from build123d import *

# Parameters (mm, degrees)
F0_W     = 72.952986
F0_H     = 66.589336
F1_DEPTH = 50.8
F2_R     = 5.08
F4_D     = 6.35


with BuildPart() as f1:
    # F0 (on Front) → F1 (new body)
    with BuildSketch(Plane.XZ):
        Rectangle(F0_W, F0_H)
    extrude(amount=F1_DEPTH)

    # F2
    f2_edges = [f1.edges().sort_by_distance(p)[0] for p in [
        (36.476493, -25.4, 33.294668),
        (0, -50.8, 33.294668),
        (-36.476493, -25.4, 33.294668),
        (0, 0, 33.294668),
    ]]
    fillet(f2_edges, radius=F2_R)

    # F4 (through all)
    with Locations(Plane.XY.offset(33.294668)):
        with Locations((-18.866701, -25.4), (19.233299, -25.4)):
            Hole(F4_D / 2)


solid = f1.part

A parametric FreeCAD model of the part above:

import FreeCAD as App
import Part
import Sketcher
from FreeCAD import Vector
Q = App.Units.Quantity


def edges_at(feature, points):
    """Names of the edges that pass closest to the given points."""
    edges = feature.Shape.Edges
    near = lambda p: min(range(len(edges)), key=lambda i: edges[i].distToShape(Part.Vertex(*p))[0])
    return sorted({f"Edge{near(p) + 1}" for p in points})

doc = App.newDocument("Part")
params = doc.addObject("Spreadsheet::Sheet", "Params")
for row, (alias, value) in enumerate([
    ("pad1_length", "2 in"),
    ("fillet_radius", "0.2 in"),
    ("sketch2_diameter", "0.25 in"),
    ("hole_diameter", "0.25 in"),
], start=1):
    params.set(f"A{row}", alias)
    params.set(f"B{row}", "=" + value)
    params.setAlias(f"B{row}", alias)

body = doc.addObject("PartDesign::Body", "Body")

# Sketch on XZ plane
sketch1 = doc.addObject("Sketcher::SketchObject", "Sketch")
body.addObject(sketch1)
sketch1.AttachmentSupport = (doc.XZ_Plane, [""])
sketch1.MapMode = "FlatFace"
sketch1.addGeometry([
    Part.LineSegment(Vector(-36.476493, 33.294668, 0), Vector(-36.476493, -33.294668, 0)),
    Part.LineSegment(Vector(-36.476493, -33.294668, 0), Vector(36.476493, -33.294668, 0)),
    Part.LineSegment(Vector(36.476493, -33.294668, 0), Vector(36.476493, 33.294668, 0)),
    Part.LineSegment(Vector(36.476493, 33.294668, 0), Vector(-36.476493, 33.294668, 0)),
], False)
sketch1.addConstraint([
    Sketcher.Constraint("Coincident", 0, 2, 1, 1),
    Sketcher.Constraint("Coincident", 1, 2, 2, 1),
    Sketcher.Constraint("Coincident", 2, 2, 3, 1),
    Sketcher.Constraint("Coincident", 3, 2, 0, 1),
    Sketcher.Constraint("Vertical", 0),
    Sketcher.Constraint("Horizontal", 1),
    Sketcher.Constraint("Vertical", 2),
    Sketcher.Constraint("Horizontal", 3),
    Sketcher.Constraint("Symmetric", 0, 2, 2, 2, -1, 1),
    Sketcher.Constraint("DistanceX", 1, 1, 1, 2, Q("72.952986 mm")),
    Sketcher.Constraint("DistanceY", 0, 2, 0, 1, Q("66.589336 mm")),
])
pad1 = doc.addObject("PartDesign::Pad", "Pad")
body.addObject(pad1)
pad1.Profile = sketch1
pad1.setExpression("Length", "Params.pad1_length")
doc.recompute()

fillet = doc.addObject("PartDesign::Fillet", "Fillet")
body.addObject(fillet)
fillet.Base = (pad1, edges_at(pad1, [
    (36.476, -25.4, 33.295),
    (0, -50.8, 33.295),
    (-36.476, -25.4, 33.295),
    (0, 0, 33.295),
]))
fillet.setExpression("Radius", "Params.fillet_radius")

# Sketch on XY plane
sketch2 = doc.addObject("Sketcher::SketchObject", "Sketch001")
body.addObject(sketch2)
sketch2.AttachmentSupport = (doc.XY_Plane, [""])
sketch2.MapMode = "FlatFace"
sketch2.AttachmentOffset = App.Placement(Vector(0, 0, 33.294668), App.Rotation())
sketch2.addGeometry([
    Part.Circle(Vector(-18.866701, -25.4, 0), Vector(0, 0, 1), 3.175),
    Part.Circle(Vector(19.233299, -25.4, 0), Vector(0, 0, 1), 3.175),
], False)
sketch2.addConstraint([
    Sketcher.Constraint("Equal", 0, 1),
    Sketcher.Constraint("Horizontal", 0, 3, 1, 3),
    Sketcher.Constraint("Diameter", 0, Q("0.25 in")),
    Sketcher.Constraint("DistanceY", 0, 3, -1, 1, Q("1 in")),
    Sketcher.Constraint("DistanceX", 0, 3, 1, 3, Q("1.5 in")),
    Sketcher.Constraint("DistanceX", 0, 3, -1, 1, Q("18.866701 mm")),
])
sketch2.setExpression("Constraints[2]", "Params.sketch2_diameter")
doc.recompute()
hole = doc.addObject("PartDesign::Hole", "Hole")
body.addObject(hole)
hole.Profile = sketch2
hole.ThreadType = "None"
hole.setExpression("Diameter", "Params.hole_diameter")
hole.DepthType = "ThroughAll"

doc.recompute()
